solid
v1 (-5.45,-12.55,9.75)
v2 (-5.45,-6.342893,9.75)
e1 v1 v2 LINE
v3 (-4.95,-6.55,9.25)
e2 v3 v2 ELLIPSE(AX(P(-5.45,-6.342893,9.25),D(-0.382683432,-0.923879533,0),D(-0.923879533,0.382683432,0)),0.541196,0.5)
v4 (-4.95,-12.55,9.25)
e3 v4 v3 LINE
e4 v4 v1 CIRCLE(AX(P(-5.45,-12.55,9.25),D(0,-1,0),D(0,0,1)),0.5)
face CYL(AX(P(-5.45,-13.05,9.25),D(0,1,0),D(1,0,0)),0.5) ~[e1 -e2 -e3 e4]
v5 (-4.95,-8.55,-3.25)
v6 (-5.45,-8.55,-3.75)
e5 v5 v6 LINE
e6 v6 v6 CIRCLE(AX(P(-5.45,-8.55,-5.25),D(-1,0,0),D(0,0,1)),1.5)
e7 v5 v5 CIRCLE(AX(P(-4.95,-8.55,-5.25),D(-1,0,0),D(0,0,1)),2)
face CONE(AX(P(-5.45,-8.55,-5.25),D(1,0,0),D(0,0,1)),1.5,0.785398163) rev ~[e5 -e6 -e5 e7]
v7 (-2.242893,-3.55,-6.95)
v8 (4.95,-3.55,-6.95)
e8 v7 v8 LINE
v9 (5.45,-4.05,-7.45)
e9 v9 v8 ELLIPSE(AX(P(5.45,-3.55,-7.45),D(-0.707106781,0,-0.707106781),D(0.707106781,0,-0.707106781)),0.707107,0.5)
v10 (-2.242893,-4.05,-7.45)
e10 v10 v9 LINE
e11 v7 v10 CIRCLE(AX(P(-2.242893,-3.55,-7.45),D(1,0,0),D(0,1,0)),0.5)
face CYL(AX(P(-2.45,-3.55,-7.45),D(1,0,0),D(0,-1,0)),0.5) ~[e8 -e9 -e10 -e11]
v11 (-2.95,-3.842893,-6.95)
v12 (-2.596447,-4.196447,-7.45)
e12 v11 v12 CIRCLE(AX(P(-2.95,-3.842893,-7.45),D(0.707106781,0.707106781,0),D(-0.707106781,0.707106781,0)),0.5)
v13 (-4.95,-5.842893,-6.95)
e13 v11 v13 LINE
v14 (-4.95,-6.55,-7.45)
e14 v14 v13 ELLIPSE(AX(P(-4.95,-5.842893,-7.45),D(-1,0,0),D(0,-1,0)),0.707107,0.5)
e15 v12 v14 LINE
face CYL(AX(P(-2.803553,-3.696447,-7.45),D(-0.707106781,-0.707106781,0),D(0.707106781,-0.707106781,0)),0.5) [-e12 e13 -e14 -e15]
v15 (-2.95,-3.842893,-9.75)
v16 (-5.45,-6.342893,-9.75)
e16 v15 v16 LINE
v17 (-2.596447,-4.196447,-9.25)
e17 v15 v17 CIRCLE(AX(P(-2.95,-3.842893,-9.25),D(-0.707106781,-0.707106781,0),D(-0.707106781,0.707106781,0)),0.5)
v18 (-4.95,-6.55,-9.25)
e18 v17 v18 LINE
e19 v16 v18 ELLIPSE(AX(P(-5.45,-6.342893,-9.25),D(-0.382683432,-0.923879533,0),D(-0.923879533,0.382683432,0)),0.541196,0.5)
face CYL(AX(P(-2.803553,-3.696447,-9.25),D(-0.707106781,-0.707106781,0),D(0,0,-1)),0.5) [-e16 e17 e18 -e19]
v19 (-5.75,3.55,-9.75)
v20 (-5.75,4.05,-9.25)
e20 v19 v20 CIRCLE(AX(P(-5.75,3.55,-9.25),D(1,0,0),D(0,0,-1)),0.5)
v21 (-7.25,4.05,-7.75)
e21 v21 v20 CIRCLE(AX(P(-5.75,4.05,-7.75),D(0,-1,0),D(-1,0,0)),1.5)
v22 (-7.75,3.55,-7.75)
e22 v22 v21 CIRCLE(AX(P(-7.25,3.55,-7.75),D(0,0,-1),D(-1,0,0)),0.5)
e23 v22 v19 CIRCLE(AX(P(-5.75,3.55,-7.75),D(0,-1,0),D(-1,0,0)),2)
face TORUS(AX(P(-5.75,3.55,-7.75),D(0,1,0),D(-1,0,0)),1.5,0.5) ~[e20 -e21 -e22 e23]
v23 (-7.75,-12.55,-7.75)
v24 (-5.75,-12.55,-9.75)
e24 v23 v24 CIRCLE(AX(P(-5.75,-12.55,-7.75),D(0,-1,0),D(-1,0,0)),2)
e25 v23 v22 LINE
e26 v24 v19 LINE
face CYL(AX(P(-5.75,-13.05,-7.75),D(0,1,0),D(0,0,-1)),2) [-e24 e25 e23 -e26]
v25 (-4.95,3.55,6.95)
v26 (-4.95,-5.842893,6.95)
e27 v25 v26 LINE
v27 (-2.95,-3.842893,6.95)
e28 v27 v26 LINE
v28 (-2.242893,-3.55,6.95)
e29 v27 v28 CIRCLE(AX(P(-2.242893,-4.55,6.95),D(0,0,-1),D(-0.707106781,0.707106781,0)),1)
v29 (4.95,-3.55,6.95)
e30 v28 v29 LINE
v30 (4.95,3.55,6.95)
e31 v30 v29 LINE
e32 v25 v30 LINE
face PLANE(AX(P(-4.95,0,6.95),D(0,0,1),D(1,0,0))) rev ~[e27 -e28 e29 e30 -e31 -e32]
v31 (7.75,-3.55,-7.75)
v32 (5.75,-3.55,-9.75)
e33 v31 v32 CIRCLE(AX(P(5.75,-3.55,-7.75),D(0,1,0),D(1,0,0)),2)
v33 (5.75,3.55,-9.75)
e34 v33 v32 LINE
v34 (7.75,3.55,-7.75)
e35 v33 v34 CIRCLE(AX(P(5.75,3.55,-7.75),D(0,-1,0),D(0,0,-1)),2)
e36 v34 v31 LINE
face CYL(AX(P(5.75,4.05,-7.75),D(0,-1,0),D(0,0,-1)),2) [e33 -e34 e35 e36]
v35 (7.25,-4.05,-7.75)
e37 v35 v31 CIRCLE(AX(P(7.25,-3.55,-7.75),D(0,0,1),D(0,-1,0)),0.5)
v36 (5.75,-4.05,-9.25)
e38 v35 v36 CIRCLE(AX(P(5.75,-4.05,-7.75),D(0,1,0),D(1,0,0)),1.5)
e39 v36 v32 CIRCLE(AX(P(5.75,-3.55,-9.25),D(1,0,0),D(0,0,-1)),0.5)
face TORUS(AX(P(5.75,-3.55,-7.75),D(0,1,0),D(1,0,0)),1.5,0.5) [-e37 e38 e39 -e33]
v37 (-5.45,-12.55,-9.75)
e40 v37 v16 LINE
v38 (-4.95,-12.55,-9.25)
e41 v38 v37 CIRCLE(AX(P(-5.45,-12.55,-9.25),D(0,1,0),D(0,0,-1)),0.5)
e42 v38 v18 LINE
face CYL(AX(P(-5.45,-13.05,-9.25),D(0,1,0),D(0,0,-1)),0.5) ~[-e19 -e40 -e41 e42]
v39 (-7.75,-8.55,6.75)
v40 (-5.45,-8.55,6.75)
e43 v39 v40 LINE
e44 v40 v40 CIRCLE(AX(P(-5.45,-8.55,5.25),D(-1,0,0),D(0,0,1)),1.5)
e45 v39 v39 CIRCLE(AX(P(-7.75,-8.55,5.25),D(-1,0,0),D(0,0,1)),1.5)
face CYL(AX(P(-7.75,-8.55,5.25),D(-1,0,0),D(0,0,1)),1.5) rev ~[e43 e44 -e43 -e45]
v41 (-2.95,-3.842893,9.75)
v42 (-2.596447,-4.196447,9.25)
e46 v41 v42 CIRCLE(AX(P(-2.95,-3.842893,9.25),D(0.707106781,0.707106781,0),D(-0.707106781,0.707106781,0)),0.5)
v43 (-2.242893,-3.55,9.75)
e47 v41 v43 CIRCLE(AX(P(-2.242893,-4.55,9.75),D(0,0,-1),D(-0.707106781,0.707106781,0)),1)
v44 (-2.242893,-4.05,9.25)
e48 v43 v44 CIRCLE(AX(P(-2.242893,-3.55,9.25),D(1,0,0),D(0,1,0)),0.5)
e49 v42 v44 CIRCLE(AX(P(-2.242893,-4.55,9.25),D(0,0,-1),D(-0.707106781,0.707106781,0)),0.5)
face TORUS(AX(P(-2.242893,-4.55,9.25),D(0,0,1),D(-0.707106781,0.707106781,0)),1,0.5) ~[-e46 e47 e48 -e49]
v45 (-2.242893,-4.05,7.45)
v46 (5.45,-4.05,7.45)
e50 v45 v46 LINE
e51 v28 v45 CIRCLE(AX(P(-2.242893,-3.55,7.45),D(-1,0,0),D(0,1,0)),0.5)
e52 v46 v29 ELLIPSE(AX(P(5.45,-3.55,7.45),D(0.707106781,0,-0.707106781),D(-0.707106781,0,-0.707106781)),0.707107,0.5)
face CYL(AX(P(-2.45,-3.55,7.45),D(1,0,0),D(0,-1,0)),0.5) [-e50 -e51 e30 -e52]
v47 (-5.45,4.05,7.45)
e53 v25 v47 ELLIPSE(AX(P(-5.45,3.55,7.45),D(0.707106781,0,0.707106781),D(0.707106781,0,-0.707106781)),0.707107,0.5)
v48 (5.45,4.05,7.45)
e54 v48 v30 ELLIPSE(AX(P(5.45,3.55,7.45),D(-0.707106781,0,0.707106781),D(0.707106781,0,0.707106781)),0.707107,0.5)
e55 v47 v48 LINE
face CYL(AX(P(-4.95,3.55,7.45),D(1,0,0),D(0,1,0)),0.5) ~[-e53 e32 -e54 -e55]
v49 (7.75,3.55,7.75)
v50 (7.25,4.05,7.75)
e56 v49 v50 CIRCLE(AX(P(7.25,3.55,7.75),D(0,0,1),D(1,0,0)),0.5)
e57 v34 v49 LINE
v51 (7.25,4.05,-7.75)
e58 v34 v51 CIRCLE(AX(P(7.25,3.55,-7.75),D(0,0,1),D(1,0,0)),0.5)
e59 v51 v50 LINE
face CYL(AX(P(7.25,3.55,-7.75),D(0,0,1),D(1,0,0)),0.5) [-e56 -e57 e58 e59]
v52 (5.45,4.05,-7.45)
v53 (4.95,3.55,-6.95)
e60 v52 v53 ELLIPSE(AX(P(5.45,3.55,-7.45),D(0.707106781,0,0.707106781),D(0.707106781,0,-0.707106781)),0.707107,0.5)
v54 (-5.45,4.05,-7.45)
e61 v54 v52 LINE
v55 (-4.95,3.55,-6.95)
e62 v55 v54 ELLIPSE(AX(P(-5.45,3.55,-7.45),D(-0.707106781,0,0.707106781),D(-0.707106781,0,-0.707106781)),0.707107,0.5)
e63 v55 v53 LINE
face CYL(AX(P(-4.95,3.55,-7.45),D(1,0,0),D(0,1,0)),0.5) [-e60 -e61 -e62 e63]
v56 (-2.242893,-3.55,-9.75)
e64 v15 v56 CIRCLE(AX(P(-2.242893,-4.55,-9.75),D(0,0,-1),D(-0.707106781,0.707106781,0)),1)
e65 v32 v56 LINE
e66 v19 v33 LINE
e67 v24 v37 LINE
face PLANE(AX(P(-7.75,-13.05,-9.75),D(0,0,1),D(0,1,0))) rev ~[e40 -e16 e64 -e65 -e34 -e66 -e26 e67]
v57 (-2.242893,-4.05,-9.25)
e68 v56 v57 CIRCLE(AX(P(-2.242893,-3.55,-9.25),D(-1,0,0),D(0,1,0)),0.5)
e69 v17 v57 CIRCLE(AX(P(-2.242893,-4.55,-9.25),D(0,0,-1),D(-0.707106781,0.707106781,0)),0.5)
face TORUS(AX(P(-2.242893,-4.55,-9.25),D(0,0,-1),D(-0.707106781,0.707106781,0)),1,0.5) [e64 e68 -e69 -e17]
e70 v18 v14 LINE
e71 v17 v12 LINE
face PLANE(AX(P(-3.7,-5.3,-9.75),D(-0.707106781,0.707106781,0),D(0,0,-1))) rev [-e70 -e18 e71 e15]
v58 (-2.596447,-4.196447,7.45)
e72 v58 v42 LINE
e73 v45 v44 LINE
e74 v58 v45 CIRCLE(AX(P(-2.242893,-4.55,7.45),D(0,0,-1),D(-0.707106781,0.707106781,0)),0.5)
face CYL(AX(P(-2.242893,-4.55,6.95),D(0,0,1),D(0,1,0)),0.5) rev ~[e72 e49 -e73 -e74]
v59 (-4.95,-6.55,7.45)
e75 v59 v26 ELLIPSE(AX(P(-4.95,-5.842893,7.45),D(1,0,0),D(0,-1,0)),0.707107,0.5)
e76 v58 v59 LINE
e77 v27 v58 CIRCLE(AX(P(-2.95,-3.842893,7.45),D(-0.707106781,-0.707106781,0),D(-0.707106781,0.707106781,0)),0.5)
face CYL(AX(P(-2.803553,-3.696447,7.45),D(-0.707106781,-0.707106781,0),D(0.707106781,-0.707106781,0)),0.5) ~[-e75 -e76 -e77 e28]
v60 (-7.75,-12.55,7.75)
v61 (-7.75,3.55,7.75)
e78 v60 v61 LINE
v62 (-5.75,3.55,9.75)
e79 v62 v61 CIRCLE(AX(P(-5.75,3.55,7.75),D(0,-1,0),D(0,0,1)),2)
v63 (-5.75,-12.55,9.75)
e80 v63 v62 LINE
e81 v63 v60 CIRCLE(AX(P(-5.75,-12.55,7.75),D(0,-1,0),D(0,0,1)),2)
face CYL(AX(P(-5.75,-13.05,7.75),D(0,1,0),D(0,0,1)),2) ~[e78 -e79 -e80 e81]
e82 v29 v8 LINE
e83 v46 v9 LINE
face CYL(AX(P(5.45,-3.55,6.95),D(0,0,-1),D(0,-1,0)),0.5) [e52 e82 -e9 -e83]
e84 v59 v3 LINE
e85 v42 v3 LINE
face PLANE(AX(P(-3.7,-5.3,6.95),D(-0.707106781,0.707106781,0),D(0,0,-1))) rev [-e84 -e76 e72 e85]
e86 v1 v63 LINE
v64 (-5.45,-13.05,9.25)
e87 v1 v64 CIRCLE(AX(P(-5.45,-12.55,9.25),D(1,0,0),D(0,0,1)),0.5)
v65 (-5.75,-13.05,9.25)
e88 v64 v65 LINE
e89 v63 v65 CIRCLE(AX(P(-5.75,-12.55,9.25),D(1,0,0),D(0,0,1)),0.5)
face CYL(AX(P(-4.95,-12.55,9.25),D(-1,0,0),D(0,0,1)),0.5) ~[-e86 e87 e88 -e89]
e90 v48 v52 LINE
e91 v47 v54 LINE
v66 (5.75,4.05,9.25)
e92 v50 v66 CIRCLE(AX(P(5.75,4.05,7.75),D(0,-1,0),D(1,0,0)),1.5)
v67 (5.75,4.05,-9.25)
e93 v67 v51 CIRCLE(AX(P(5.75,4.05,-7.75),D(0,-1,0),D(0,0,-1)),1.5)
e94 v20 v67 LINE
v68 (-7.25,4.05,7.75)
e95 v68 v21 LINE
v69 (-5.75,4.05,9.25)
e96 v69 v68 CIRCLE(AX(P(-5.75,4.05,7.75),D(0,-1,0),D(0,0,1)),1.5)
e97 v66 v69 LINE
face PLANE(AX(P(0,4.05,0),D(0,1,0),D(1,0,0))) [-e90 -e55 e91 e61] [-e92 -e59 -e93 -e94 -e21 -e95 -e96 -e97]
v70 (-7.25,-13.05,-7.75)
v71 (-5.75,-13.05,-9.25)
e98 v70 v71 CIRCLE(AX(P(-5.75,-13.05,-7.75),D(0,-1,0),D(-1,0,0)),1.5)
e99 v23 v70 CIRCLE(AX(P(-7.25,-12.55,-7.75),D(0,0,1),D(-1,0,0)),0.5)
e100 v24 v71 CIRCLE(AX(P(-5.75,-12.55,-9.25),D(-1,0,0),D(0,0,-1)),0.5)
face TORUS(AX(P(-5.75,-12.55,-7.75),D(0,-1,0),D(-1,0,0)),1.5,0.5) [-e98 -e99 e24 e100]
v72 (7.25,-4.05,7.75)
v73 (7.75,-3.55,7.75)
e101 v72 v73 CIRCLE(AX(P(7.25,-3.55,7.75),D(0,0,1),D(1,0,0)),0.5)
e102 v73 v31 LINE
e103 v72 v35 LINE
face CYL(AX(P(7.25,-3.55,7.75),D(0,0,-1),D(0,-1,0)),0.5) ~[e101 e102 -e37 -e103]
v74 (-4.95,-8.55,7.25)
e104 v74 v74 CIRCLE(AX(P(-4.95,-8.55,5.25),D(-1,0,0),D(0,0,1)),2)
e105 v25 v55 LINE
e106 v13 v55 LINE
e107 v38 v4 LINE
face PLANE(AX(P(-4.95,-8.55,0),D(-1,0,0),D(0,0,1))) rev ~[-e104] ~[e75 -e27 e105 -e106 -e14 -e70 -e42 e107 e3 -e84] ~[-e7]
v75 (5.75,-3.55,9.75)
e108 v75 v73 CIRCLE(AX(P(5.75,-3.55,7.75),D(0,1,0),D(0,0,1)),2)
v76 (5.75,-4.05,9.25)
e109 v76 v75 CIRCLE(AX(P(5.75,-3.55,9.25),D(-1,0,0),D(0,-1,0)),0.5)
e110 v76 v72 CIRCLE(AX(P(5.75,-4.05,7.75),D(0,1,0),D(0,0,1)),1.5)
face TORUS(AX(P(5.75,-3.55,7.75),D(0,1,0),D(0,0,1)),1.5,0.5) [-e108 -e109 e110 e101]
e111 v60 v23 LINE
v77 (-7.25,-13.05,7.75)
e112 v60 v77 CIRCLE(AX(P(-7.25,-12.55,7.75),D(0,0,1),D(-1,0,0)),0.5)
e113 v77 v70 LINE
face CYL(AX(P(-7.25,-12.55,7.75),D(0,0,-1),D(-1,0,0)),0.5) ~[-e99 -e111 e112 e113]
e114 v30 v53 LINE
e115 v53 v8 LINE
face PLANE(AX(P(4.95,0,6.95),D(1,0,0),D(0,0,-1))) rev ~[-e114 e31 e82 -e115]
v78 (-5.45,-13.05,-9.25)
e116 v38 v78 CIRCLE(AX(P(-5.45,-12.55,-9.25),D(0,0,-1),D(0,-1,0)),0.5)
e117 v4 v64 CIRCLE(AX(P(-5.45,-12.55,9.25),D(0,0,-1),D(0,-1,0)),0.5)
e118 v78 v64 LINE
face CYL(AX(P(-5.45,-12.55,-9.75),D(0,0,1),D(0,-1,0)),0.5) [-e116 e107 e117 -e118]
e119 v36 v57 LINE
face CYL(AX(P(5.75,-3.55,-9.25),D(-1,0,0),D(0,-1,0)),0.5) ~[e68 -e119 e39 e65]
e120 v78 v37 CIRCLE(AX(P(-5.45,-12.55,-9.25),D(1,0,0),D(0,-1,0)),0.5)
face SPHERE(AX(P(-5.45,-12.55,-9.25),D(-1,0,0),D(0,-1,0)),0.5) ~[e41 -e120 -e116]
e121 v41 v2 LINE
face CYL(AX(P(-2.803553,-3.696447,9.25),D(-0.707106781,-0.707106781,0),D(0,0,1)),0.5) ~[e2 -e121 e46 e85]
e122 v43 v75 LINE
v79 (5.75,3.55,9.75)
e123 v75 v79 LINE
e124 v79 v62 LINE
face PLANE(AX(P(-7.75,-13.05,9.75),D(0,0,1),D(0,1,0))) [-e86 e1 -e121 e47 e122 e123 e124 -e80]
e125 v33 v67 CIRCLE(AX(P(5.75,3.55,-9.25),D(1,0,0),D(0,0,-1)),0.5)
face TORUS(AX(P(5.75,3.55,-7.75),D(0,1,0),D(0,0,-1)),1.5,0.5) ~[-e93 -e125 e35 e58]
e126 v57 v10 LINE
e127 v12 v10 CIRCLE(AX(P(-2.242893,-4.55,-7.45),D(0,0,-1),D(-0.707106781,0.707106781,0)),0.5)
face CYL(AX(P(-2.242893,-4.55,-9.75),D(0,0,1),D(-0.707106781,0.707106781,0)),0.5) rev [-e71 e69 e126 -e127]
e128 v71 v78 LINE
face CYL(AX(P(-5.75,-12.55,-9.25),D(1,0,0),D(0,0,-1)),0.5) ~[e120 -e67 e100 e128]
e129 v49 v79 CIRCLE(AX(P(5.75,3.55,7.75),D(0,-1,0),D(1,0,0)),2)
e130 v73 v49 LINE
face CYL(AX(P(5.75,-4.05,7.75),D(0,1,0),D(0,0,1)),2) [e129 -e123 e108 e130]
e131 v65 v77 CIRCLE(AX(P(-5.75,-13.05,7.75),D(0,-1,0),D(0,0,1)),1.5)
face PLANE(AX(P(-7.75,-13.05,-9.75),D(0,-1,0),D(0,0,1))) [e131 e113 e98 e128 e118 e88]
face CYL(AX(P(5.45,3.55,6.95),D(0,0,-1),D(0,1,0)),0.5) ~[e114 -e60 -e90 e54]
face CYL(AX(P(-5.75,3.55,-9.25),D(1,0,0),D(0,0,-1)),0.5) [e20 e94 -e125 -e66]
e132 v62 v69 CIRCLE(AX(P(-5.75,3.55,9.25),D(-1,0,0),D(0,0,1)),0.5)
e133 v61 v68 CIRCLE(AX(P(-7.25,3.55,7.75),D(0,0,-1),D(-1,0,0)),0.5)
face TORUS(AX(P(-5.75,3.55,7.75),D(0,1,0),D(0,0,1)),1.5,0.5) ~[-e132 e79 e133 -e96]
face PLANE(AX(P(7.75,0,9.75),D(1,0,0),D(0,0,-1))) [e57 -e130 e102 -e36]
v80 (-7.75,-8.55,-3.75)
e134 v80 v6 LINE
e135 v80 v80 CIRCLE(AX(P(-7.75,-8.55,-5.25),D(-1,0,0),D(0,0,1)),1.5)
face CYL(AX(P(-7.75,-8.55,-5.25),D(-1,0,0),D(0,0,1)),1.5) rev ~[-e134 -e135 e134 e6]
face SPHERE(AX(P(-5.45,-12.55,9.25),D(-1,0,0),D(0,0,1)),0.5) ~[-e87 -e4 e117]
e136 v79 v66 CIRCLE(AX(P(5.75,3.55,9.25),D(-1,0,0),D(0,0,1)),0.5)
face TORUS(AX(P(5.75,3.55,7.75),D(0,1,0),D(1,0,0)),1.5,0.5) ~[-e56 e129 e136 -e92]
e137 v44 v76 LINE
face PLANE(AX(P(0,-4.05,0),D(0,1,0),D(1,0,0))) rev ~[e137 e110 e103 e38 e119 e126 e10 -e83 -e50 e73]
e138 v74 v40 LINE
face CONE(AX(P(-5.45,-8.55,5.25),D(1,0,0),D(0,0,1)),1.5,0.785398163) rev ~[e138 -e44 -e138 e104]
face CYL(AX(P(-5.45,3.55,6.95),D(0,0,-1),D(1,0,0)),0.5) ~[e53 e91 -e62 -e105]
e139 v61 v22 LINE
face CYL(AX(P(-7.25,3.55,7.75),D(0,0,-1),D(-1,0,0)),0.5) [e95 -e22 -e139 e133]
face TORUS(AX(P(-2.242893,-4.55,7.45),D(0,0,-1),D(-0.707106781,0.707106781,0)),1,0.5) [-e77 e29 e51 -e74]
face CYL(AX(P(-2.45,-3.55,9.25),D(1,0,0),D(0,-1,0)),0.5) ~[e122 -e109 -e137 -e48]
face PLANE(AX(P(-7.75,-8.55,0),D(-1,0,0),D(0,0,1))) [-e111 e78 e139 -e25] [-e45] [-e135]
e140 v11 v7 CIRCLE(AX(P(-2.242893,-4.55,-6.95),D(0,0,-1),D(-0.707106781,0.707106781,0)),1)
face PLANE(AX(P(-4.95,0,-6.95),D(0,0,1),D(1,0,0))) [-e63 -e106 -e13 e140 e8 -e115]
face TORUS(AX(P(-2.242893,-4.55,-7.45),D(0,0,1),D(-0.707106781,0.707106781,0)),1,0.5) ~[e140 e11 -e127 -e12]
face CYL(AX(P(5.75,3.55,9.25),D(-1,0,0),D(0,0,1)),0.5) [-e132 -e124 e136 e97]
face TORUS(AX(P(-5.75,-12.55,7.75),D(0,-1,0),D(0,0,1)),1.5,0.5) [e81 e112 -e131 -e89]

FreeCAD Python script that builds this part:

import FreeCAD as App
import Part
import Sketcher


def edges_at(feature, points):
    """Names of the edges that pass closest to the given points."""
    edges = feature.Shape.Edges
    near = lambda p: min(range(len(edges)), key=lambda i: edges[i].distToShape(Part.Vertex(*p))[0])
    return sorted({f"Edge{near(p) + 1}" for p in points})

doc = App.newDocument("Part")
body = doc.addObject("PartDesign::Body", "Body")

sketch1 = body.newObject("Sketcher::SketchObject", "Sketch")
sketch1.AttachmentSupport = (doc.getObject("XZ_Plane"), [""])
sketch1.MapMode = "FlatFace"
sketch1.addGeometry(Part.LineSegment(App.Vector(-7.75, -9.75, 0), App.Vector(-7.75, 9.75, 0)), False)
sketch1.addGeometry(Part.LineSegment(App.Vector(-7.75, 9.75, 0), App.Vector(7.75, 9.75, 0)), False)
sketch1.addGeometry(Part.LineSegment(App.Vector(7.75, 9.75, 0), App.Vector(7.75, -9.75, 0)), False)
sketch1.addGeometry(Part.LineSegment(App.Vector(7.75, -9.75, 0), App.Vector(-7.75, -9.75, 0)), False)
sketch1.addGeometry(Part.LineSegment(App.Vector(4.95, 6.95, 0), App.Vector(-4.95, 6.95, 0)), False)
sketch1.addGeometry(Part.LineSegment(App.Vector(-4.95, 6.95, 0), App.Vector(-4.95, -6.95, 0)), False)
sketch1.addGeometry(Part.LineSegment(App.Vector(-4.95, -6.95, 0), App.Vector(4.95, -6.95, 0)), False)
sketch1.addGeometry(Part.LineSegment(App.Vector(4.95, -6.95, 0), App.Vector(4.95, 6.95, 0)), False)
sketch1.addConstraint(Sketcher.Constraint("Coincident", 0, 2, 1, 1))
sketch1.addConstraint(Sketcher.Constraint("Coincident", 1, 2, 2, 1))
sketch1.addConstraint(Sketcher.Constraint("Coincident", 2, 2, 3, 1))
sketch1.addConstraint(Sketcher.Constraint("Coincident", 3, 2, 0, 1))
sketch1.addConstraint(Sketcher.Constraint("Coincident", 4, 2, 5, 1))
sketch1.addConstraint(Sketcher.Constraint("Coincident", 5, 2, 6, 1))
sketch1.addConstraint(Sketcher.Constraint("Coincident", 6, 2, 7, 1))
sketch1.addConstraint(Sketcher.Constraint("Coincident", 7, 2, 4, 1))
sketch1.addConstraint(Sketcher.Constraint("Vertical", 0))
sketch1.addConstraint(Sketcher.Constraint("Horizontal", 1))
sketch1.addConstraint(Sketcher.Constraint("Vertical", 2))
sketch1.addConstraint(Sketcher.Constraint("Horizontal", 3))
sketch1.addConstraint(Sketcher.Constraint("Horizontal", 4))
sketch1.addConstraint(Sketcher.Constraint("Vertical", 5))
sketch1.addConstraint(Sketcher.Constraint("Horizontal", 6))
sketch1.addConstraint(Sketcher.Constraint("Vertical", 7))
sketch1.addConstraint(Sketcher.Constraint("Symmetric", 0, 2, 2, 2, -1, 1))
sketch1.addConstraint(Sketcher.Constraint("Symmetric", 4, 2, 6, 2, -1, 1))
sketch1.addConstraint(Sketcher.Constraint("DistanceX", 1, 1, 1, 2, 15.5))
sketch1.addConstraint(Sketcher.Constraint("DistanceX", 4, 2, 4, 1, 9.9))
sketch1.addConstraint(Sketcher.Constraint("DistanceY", 0, 1, 0, 2, 19.5))
sketch1.addConstraint(Sketcher.Constraint("DistanceY", 5, 2, 5, 1, 13.9))
pad1 = body.newObject("PartDesign::Pad", "Pad")
pad1.Profile = sketch1
pad1.Length = 8.1
pad1.Midplane = True

sketch2 = body.newObject("Sketcher::SketchObject", "Sketch001")
sketch2.AttachmentSupport = (doc.getObject("YZ_Plane"), [""])
sketch2.MapMode = "FlatFace"
sketch2.AttachmentOffset = App.Placement(App.Vector(0, 0, -7.75), App.Rotation())
sketch2.addGeometry(Part.LineSegment(App.Vector(-4.05, -9.75, 0), App.Vector(-13.05, -9.75, 0)), False)
sketch2.addGeometry(Part.LineSegment(App.Vector(-13.05, -9.75, 0), App.Vector(-13.05, 9.75, 0)), False)
sketch2.addGeometry(Part.LineSegment(App.Vector(-13.05, 9.75, 0), App.Vector(-4.05, 9.75, 0)), False)
sketch2.addGeometry(Part.LineSegment(App.Vector(-4.05, 9.75, 0), App.Vector(-4.05, -9.75, 0)), False)
sketch2.addGeometry(Part.Circle(App.Vector(-8.55, -5.25, 0), App.Vector(0, 0, 1), 1.5), False)
sketch2.addGeometry(Part.Circle(App.Vector(-8.55, 5.25, 0), App.Vector(0, 0, 1), 1.5), False)
sketch2.addConstraint(Sketcher.Constraint("Coincident", 0, 2, 1, 1))
sketch2.addConstraint(Sketcher.Constraint("Coincident", 1, 2, 2, 1))
sketch2.addConstraint(Sketcher.Constraint("Coincident", 2, 2, 3, 1))
sketch2.addConstraint(Sketcher.Constraint("Coincident", 3, 2, 0, 1))
sketch2.addConstraint(Sketcher.Constraint("Horizontal", 0))
sketch2.addConstraint(Sketcher.Constraint("Vertical", 1))
sketch2.addConstraint(Sketcher.Constraint("Horizontal", 2))
sketch2.addConstraint(Sketcher.Constraint("Vertical", 3))
sketch2.addConstraint(Sketcher.Constraint("Equal", 4, 5))
sketch2.addConstraint(Sketcher.Constraint("Symmetric", 4, 3, 5, 3, -1))
sketch2.addConstraint(Sketcher.Constraint("Diameter", 4, 3.0))
sketch2.addConstraint(Sketcher.Constraint("DistanceX", 0, 2, 0, 1, 9.0))
sketch2.addConstraint(Sketcher.Constraint("DistanceY", 1, 1, 1, 2, 19.5))
sketch2.addConstraint(Sketcher.Constraint("DistanceY", 0, 2, 5, 3, 15.0))
sketch2.addConstraint(Sketcher.Constraint("DistanceY", 4, 3, 1, 2, 15.0))
sketch2.addConstraint(Sketcher.Constraint("DistanceX", 0, 2, 4, 3, 4.5))
sketch2.addConstraint(Sketcher.Constraint("DistanceX", 4, 3, -1, 1, 8.55))
pad2 = body.newObject("PartDesign::Pad", "Pad001")
pad2.Profile = sketch2
pad2.Length = 2.8
doc.recompute()

chamfer = body.newObject("PartDesign::Chamfer", "Chamfer")
chamfer.Base = (pad2, edges_at(pad2, [(-4.95, -4.05, -8.35), (-4.95, -4.05, 8.35)]))
chamfer.Size = 2.5
doc.recompute()

fillet = body.newObject("PartDesign::Fillet", "Fillet")
fillet.Base = (chamfer, edges_at(chamfer, [
    (-7.75, -4.5, -9.75),
    (7.75, 0, -9.75),
    (7.75, 0, 9.75),
    (-7.75, -4.5, 9.75),
]))
fillet.Radius = 2
doc.recompute()

fillet2 = body.newObject("PartDesign::Fillet", "Fillet001")
fillet2.Base = (fillet, edges_at(fillet, [
    (4.95, -4.05, 0),
    (1.25, -4.05, -6.95),
    (-4.95, 4.05, 0),
    (0, 4.05, 6.95),
    (4.95, 4.05, 0),
    (0, 4.05, -6.95),
    (-5.35, -13.05, -9.75),
    (-4.95, -9.8, 9.75),
    (-4.95, -13.05, 0),
    (-5.35, -13.05, 9.75),
    (1.65, -4.05, 9.75),
    (1.25, -4.05, 6.95),
    (-2.45, -4.05, 8.35),
    (-2.45, -4.05, -8.35),
    (-4.95, -9.8, -9.75),
    (-3.7, -5.3, -9.75),
    (-3.7, -5.3, -6.95),
    (-3.7, -5.3, 6.95),
    (-3.7, -5.3, 9.75),
    (1.65, -4.05, -9.75),
    (0, 4.05, -9.75),
    (7.75, -4.05, 0),
    (7.164, -4.05, 9.164),
    (7.164, -4.05, -9.164),
    (7.75, 4.05, 0),
    (-7.75, 4.05, 0),
    (0, 4.05, 9.75),
    (-7.164, 4.05, 9.164),
    (-7.164, 4.05, -9.164),
    (7.164, 4.05, 9.164),
    (7.164, 4.05, -9.164),
    (-7.75, -13.05, 0),
    (-7.164, -13.05, 9.164),
    (-7.164, -13.05, -9.164),
]))
fillet2.Radius = 0.5
doc.recompute()

chamfer2 = body.newObject("PartDesign::Chamfer", "Chamfer001")
chamfer2.Base = (fillet2, edges_at(fillet2, [(-4.95, -8.55, 3.75), (-4.95, -8.55, -6.75)]))
chamfer2.Size = 0.5

doc.recompute()
